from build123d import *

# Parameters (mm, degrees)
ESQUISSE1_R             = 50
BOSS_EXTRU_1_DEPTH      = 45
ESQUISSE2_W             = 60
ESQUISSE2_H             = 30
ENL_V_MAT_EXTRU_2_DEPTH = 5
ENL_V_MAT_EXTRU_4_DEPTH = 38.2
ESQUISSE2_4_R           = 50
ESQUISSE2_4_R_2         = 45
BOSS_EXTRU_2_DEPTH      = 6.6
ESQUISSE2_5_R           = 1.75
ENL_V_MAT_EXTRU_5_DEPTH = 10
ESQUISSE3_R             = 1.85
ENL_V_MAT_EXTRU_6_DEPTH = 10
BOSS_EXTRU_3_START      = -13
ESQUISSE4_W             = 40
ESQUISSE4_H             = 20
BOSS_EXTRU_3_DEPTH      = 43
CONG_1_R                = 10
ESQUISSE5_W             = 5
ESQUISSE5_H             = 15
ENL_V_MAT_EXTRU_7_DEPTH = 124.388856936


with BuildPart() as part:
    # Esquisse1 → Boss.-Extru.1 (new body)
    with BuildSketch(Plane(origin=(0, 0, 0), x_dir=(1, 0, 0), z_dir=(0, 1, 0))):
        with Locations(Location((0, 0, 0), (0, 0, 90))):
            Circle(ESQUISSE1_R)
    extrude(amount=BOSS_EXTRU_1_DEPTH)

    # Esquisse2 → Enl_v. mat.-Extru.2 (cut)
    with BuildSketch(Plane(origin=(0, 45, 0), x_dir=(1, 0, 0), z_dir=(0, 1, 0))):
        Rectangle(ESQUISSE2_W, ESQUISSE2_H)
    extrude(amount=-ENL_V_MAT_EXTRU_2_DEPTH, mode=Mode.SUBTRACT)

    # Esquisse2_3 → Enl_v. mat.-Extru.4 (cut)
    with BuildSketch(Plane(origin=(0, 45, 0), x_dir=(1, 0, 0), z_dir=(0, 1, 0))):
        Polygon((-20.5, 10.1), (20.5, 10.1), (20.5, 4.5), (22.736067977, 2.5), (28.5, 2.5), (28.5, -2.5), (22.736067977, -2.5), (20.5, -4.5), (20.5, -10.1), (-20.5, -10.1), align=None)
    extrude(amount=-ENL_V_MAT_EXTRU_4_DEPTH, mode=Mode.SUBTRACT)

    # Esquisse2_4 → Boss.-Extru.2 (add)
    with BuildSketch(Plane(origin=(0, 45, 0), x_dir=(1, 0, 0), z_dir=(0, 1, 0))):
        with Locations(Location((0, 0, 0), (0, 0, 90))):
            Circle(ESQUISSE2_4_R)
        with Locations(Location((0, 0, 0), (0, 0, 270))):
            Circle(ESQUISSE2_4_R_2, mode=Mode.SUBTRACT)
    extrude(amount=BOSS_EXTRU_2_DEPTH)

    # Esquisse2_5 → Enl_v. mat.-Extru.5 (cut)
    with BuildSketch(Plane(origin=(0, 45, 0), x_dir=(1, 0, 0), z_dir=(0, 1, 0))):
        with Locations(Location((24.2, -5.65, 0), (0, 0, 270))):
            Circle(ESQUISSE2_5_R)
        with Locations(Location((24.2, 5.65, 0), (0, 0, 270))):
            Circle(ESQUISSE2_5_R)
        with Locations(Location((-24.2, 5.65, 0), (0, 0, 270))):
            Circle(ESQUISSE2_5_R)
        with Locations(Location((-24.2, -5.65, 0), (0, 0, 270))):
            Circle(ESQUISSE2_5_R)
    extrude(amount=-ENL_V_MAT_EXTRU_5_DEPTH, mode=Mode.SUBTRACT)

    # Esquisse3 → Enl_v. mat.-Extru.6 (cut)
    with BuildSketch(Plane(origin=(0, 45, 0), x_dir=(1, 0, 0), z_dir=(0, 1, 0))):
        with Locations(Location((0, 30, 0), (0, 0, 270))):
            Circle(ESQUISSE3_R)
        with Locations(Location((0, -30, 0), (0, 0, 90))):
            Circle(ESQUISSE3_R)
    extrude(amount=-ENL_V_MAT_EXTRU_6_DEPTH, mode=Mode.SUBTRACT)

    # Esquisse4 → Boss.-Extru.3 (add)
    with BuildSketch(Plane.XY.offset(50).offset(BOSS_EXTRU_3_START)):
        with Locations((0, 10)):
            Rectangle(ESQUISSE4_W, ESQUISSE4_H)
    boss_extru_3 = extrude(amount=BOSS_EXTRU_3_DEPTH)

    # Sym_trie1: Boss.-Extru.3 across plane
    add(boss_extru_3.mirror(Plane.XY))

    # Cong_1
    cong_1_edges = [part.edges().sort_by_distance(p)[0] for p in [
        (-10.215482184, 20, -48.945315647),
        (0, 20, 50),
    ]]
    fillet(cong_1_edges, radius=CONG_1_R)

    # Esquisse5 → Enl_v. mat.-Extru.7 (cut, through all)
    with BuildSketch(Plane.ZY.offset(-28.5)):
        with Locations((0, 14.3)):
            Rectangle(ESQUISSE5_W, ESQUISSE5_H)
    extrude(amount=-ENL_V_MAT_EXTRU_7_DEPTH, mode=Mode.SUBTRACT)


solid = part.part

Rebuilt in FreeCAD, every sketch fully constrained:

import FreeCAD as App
import Part
import Sketcher

V = App.Vector
Q = App.Units.Quantity


def edges_at(feature, points):
    """Names of the edges that pass closest to the given points."""
    edges = feature.Shape.Edges
    near = lambda p: min(range(len(edges)), key=lambda i: edges[i].distToShape(Part.Vertex(*p))[0])
    return sorted({f"Edge{near(p) + 1}" for p in points})

doc = App.newDocument("Part")
body = doc.addObject("PartDesign::Body", "Body")

# Sketch on XZ plane
sketch1 = doc.addObject("Sketcher::SketchObject", "Sketch")
body.addObject(sketch1)
sketch1.AttachmentSupport = (doc.XZ_Plane, [""])
sketch1.MapMode = "FlatFace"
sketch1.addGeometry(Part.Circle(V(0, 0, 0), V(0, 0, 1), 50), False)
sketch1.addConstraint([
    Sketcher.Constraint("Coincident", 0, 3, -1, 1),
    Sketcher.Constraint("Diameter", 0, Q("100 mm")),
])
pad1 = doc.addObject("PartDesign::Pad", "Pad")
body.addObject(pad1)
pad1.Profile = sketch1
pad1.Length = 45
pad1.Reversed = True

# Sketch on XZ plane
sketch2 = doc.addObject("Sketcher::SketchObject", "Sketch001")
body.addObject(sketch2)
sketch2.AttachmentSupport = (doc.XZ_Plane, [""])
sketch2.MapMode = "FlatFace"
sketch2.AttachmentOffset = App.Placement(V(0, 0, -45), App.Rotation())
sketch2.addGeometry([
    Part.LineSegment(V(-30, -15, 0), V(-30, 15, 0)),
    Part.LineSegment(V(-30, 15, 0), V(30, 15, 0)),
    Part.LineSegment(V(30, 15, 0), V(30, -15, 0)),
    Part.LineSegment(V(30, -15, 0), V(-30, -15, 0)),
], False)
sketch2.addConstraint([
    Sketcher.Constraint("Coincident", 0, 2, 1, 1),
    Sketcher.Constraint("Coincident", 1, 2, 2, 1),
    Sketcher.Constraint("Coincident", 2, 2, 3, 1),
    Sketcher.Constraint("Coincident", 3, 2, 0, 1),
    Sketcher.Constraint("Vertical", 0),
    Sketcher.Constraint("Horizontal", 1),
    Sketcher.Constraint("Vertical", 2),
    Sketcher.Constraint("Horizontal", 3),
    Sketcher.Constraint("Symmetric", 0, 2, 2, 2, -1, 1),
    Sketcher.Constraint("DistanceX", 1, 1, 1, 2, Q("60 mm")),
    Sketcher.Constraint("DistanceY", 0, 1, 0, 2, Q("30 mm")),
])
pocket1 = doc.addObject("PartDesign::Pocket", "Pocket")
body.addObject(pocket1)
pocket1.Profile = sketch2
pocket1.Length = 5
pocket1.Reversed = True

# Sketch on XZ plane
sketch3 = doc.addObject("Sketcher::SketchObject", "Sketch002")
body.addObject(sketch3)
sketch3.AttachmentSupport = (doc.XZ_Plane, [""])
sketch3.MapMode = "FlatFace"
sketch3.AttachmentOffset = App.Placement(V(0, 0, -45), App.Rotation())
sketch3.addGeometry([
    Part.LineSegment(V(20.5, -10.1, 0), V(-20.5, -10.1, 0)),  # 0
    Part.LineSegment(V(-20.5, -10.1, 0), V(-20.5, 10.1, 0)),  # 1
    Part.LineSegment(V(-20.5, 10.1, 0), V(20.5, 10.1, 0)),  # 2
    Part.LineSegment(V(20.5, 10.1, 0), V(20.5, 4.5, 0)),  # 3
    Part.LineSegment(V(20.5, 4.5, 0), V(22.7, 2.5, 0)),  # 4
    Part.LineSegment(V(22.7, 2.5, 0), V(28.5, 2.5, 0)),  # 5
    Part.LineSegment(V(28.5, 2.5, 0), V(28.5, -2.5, 0)),  # 6
    Part.LineSegment(V(28.5, -2.5, 0), V(22.7, -2.5, 0)),  # 7
    Part.LineSegment(V(22.7, -2.5, 0), V(20.5, -4.5, 0)),  # 8
    Part.LineSegment(V(20.5, -4.5, 0), V(20.5, -10.1, 0)),  # 9
], False)
sketch3.addConstraint([
    Sketcher.Constraint("Coincident", 0, 2, 1, 1),
    Sketcher.Constraint("Coincident", 1, 2, 2, 1),
    Sketcher.Constraint("Coincident", 2, 2, 3, 1),
    Sketcher.Constraint("Coincident", 3, 2, 4, 1),
    Sketcher.Constraint("Coincident", 4, 2, 5, 1),
    Sketcher.Constraint("Coincident", 5, 2, 6, 1),
    Sketcher.Constraint("Coincident", 6, 2, 7, 1),
    Sketcher.Constraint("Coincident", 7, 2, 8, 1),
    Sketcher.Constraint("Coincident", 8, 2, 9, 1),
    Sketcher.Constraint("Coincident", 9, 2, 0, 1),
    Sketcher.Constraint("Horizontal", 0),
    Sketcher.Constraint("Vertical", 1),
    Sketcher.Constraint("Horizontal", 2),
    Sketcher.Constraint("Vertical", 3),
    Sketcher.Constraint("Horizontal", 5),
    Sketcher.Constraint("Vertical", 6),
    Sketcher.Constraint("Horizontal", 7),
    Sketcher.Constraint("Vertical", 9),
    Sketcher.Constraint("Symmetric", 0, 2, 2, 2, -1, 1),
    Sketcher.Constraint("Symmetric", 4, 2, 7, 2, -1),
    Sketcher.Constraint("Symmetric", 3, 2, 8, 2, -1),
    Sketcher.Constraint("DistanceX", 0, 2, 0, 1, Q("41 mm")),
    Sketcher.Constraint("DistanceY", 6, 2, 6, 1, Q("5 mm")),
    Sketcher.Constraint("Distance", 4, Q("3 mm")),
    Sketcher.Constraint("DistanceY", 1, 1, 1, 2, Q("20.2 mm")),
    Sketcher.Constraint("DistanceY", 3, 2, 3, 1, Q("5.6 mm")),
    Sketcher.Constraint("DistanceX", 3, 2, 5, 2, Q("8 mm")),
])
pocket2 = doc.addObject("PartDesign::Pocket", "Pocket001")
body.addObject(pocket2)
pocket2.Profile = sketch3
pocket2.Length = 38.2
pocket2.Reversed = True

# Sketch on XZ plane
sketch4 = doc.addObject("Sketcher::SketchObject", "Sketch003")
body.addObject(sketch4)
sketch4.AttachmentSupport = (doc.XZ_Plane, [""])
sketch4.MapMode = "FlatFace"
sketch4.AttachmentOffset = App.Placement(V(0, 0, -45), App.Rotation())
sketch4.addGeometry([
    Part.Circle(V(0, 0, 0), V(0, 0, 1), 50),
    Part.Circle(V(0, 0, 0), V(0, 0, 1), 45),
], False)
sketch4.addConstraint([
    Sketcher.Constraint("Coincident", 0, 3, -1, 1),
    Sketcher.Constraint("Coincident", 1, 3, -1, 1),
    Sketcher.Constraint("Diameter", 0, Q("100 mm")),
    Sketcher.Constraint("Diameter", 1, Q("90 mm")),
])
pad2 = doc.addObject("PartDesign::Pad", "Pad001")
body.addObject(pad2)
pad2.Profile = sketch4
pad2.Length = 6.6
pad2.Reversed = True

# Sketch on XZ plane
sketch5 = doc.addObject("Sketcher::SketchObject", "Sketch004")
body.addObject(sketch5)
sketch5.AttachmentSupport = (doc.XZ_Plane, [""])
sketch5.MapMode = "FlatFace"
sketch5.AttachmentOffset = App.Placement(V(0, 0, -45), App.Rotation())
sketch5.addGeometry([
    Part.Circle(V(24.2, 5.7, 0), V(0, 0, 1), 1.8),
    Part.Circle(V(24.2, -5.7, 0), V(0, 0, 1), 1.8),
    Part.Circle(V(-24.2, -5.7, 0), V(0, 0, 1), 1.8),
    Part.Circle(V(-24.2, 5.7, 0), V(0, 0, 1), 1.8),
], False)
sketch5.addConstraint([
    Sketcher.Constraint("Equal", 0, 1),
    Sketcher.Constraint("Equal", 1, 2),
    Sketcher.Constraint("Equal", 2, 3),
    Sketcher.Constraint("Symmetric", 0, 3, 2, 3, -1, 1),
    Sketcher.Constraint("Symmetric", 1, 3, 3, 3, -1, 1),
    Sketcher.Constraint("Symmetric", 1, 3, 2, 3, -2),
    Sketcher.Constraint("Diameter", 0, Q("3.5 mm")),
    Sketcher.Constraint("DistanceX", -1, 1, 0, 3, Q("24.2 mm")),
    Sketcher.Constraint("DistanceY", 1, 3, 0, 3, Q("11.3 mm")),
])
pocket3 = doc.addObject("PartDesign::Pocket", "Pocket002")
body.addObject(pocket3)
pocket3.Profile = sketch5
pocket3.Length = 10
pocket3.Reversed = True

# Sketch on XZ plane
sketch6 = doc.addObject("Sketcher::SketchObject", "Sketch005")
body.addObject(sketch6)
sketch6.AttachmentSupport = (doc.XZ_Plane, [""])
sketch6.MapMode = "FlatFace"
sketch6.AttachmentOffset = App.Placement(V(0, 0, -45), App.Rotation())
sketch6.addGeometry([
    Part.Circle(V(0, -30, 0), V(0, 0, 1), 1.9),
    Part.Circle(V(0, 30, 0), V(0, 0, 1), 1.9),
], False)
sketch6.addConstraint([
    Sketcher.Constraint("Equal", 0, 1),
    Sketcher.Constraint("Symmetric", 0, 3, 1, 3, -1, 1),
    Sketcher.Constraint("PointOnObject", 0, 3, -2),
    Sketcher.Constraint("Diameter", 0, Q("3.7 mm")),
    Sketcher.Constraint("DistanceY", 0, 3, -1, 1, Q("30 mm")),
])
pocket4 = doc.addObject("PartDesign::Pocket", "Pocket003")
body.addObject(pocket4)
pocket4.Profile = sketch6
pocket4.Length = 10
pocket4.Reversed = True

# Sketch on XY plane
sketch7 = doc.addObject("Sketcher::SketchObject", "Sketch006")
body.addObject(sketch7)
sketch7.AttachmentSupport = (doc.XY_Plane, [""])
sketch7.MapMode = "FlatFace"
sketch7.AttachmentOffset = App.Placement(V(0, 0, 37), App.Rotation())
sketch7.addGeometry([
    Part.LineSegment(V(-20, 20, 0), V(-20, 0, 0)),
    Part.LineSegment(V(-20, 0, 0), V(20, 0, 0)),
    Part.LineSegment(V(20, 0, 0), V(20, 20, 0)),
    Part.LineSegment(V(20, 20, 0), V(-20, 20, 0)),
], False)
sketch7.addConstraint([
    Sketcher.Constraint("Coincident", 0, 2, 1, 1),
    Sketcher.Constraint("Coincident", 1, 2, 2, 1),
    Sketcher.Constraint("Coincident", 2, 2, 3, 1),
    Sketcher.Constraint("Coincident", 3, 2, 0, 1),
    Sketcher.Constraint("Vertical", 0),
    Sketcher.Constraint("Horizontal", 1),
    Sketcher.Constraint("Vertical", 2),
    Sketcher.Constraint("Horizontal", 3),
    Sketcher.Constraint("Symmetric", 0, 2, 1, 2, -1, 1),
    Sketcher.Constraint("DistanceX", 1, 1, 1, 2, Q("40 mm")),
    Sketcher.Constraint("DistanceY", 0, 2, 0, 1, Q("20 mm")),
])
pad3 = doc.addObject("PartDesign::Pad", "Pad002")
body.addObject(pad3)
pad3.Profile = sketch7
pad3.Length = 43
doc.recompute()

mirrored = doc.addObject("PartDesign::Mirrored", "Mirrored")
body.addObject(mirrored)
mirrored.Originals = [pad3]
mirrored.MirrorPlane = (doc.XY_Plane, [""])
body.Tip = mirrored
doc.recompute()

fillet = doc.addObject("PartDesign::Fillet", "Fillet")
body.addObject(fillet)
fillet.Base = (mirrored, edges_at(mirrored, [(-10.215, 20, -48.945), (0, 20, 50)]))
fillet.Radius = 10

# Sketch on YZ plane
sketch8 = doc.addObject("Sketcher::SketchObject", "Sketch007")
body.addObject(sketch8)
sketch8.AttachmentSupport = (doc.YZ_Plane, [""])
sketch8.MapMode = "FlatFace"
sketch8.AttachmentOffset = App.Placement(V(0, 0, 28.5), App.Rotation())
sketch8.addGeometry([
    Part.LineSegment(V(22, -2, 0), V(7, -2, 0)),
    Part.LineSegment(V(7, -2, 0), V(7, 2, 0)),
    Part.LineSegment(V(7, 2, 0), V(22, 2, 0)),
    Part.LineSegment(V(22, 2, 0), V(22, -2, 0)),
], False)
sketch8.addConstraint([
    Sketcher.Constraint("Coincident", 0, 2, 1, 1),
    Sketcher.Constraint("Coincident", 1, 2, 2, 1),
    Sketcher.Constraint("Coincident", 2, 2, 3, 1),
    Sketcher.Constraint("Coincident", 3, 2, 0, 1),
    Sketcher.Constraint("Horizontal", 0),
    Sketcher.Constraint("Vertical", 1),
    Sketcher.Constraint("Horizontal", 2),
    Sketcher.Constraint("Vertical", 3),
    Sketcher.Constraint("DistanceX", 0, 2, 0, 1, Q("15 mm")),
    Sketcher.Constraint("DistanceY", 1, 1, 1, 2, Q("5 mm")),
    Sketcher.Constraint("DistanceX", -1, 1, 0, 2, Q("6.8 mm")),
    Sketcher.Constraint("DistanceY", 0, 2, -1, 1, Q("2.5 mm")),
])
pocket5 = doc.addObject("PartDesign::Pocket", "Pocket004")
body.addObject(pocket5)
pocket5.Profile = sketch8
pocket5.Type = "ThroughAll"
pocket5.Reversed = True

doc.recompute()
